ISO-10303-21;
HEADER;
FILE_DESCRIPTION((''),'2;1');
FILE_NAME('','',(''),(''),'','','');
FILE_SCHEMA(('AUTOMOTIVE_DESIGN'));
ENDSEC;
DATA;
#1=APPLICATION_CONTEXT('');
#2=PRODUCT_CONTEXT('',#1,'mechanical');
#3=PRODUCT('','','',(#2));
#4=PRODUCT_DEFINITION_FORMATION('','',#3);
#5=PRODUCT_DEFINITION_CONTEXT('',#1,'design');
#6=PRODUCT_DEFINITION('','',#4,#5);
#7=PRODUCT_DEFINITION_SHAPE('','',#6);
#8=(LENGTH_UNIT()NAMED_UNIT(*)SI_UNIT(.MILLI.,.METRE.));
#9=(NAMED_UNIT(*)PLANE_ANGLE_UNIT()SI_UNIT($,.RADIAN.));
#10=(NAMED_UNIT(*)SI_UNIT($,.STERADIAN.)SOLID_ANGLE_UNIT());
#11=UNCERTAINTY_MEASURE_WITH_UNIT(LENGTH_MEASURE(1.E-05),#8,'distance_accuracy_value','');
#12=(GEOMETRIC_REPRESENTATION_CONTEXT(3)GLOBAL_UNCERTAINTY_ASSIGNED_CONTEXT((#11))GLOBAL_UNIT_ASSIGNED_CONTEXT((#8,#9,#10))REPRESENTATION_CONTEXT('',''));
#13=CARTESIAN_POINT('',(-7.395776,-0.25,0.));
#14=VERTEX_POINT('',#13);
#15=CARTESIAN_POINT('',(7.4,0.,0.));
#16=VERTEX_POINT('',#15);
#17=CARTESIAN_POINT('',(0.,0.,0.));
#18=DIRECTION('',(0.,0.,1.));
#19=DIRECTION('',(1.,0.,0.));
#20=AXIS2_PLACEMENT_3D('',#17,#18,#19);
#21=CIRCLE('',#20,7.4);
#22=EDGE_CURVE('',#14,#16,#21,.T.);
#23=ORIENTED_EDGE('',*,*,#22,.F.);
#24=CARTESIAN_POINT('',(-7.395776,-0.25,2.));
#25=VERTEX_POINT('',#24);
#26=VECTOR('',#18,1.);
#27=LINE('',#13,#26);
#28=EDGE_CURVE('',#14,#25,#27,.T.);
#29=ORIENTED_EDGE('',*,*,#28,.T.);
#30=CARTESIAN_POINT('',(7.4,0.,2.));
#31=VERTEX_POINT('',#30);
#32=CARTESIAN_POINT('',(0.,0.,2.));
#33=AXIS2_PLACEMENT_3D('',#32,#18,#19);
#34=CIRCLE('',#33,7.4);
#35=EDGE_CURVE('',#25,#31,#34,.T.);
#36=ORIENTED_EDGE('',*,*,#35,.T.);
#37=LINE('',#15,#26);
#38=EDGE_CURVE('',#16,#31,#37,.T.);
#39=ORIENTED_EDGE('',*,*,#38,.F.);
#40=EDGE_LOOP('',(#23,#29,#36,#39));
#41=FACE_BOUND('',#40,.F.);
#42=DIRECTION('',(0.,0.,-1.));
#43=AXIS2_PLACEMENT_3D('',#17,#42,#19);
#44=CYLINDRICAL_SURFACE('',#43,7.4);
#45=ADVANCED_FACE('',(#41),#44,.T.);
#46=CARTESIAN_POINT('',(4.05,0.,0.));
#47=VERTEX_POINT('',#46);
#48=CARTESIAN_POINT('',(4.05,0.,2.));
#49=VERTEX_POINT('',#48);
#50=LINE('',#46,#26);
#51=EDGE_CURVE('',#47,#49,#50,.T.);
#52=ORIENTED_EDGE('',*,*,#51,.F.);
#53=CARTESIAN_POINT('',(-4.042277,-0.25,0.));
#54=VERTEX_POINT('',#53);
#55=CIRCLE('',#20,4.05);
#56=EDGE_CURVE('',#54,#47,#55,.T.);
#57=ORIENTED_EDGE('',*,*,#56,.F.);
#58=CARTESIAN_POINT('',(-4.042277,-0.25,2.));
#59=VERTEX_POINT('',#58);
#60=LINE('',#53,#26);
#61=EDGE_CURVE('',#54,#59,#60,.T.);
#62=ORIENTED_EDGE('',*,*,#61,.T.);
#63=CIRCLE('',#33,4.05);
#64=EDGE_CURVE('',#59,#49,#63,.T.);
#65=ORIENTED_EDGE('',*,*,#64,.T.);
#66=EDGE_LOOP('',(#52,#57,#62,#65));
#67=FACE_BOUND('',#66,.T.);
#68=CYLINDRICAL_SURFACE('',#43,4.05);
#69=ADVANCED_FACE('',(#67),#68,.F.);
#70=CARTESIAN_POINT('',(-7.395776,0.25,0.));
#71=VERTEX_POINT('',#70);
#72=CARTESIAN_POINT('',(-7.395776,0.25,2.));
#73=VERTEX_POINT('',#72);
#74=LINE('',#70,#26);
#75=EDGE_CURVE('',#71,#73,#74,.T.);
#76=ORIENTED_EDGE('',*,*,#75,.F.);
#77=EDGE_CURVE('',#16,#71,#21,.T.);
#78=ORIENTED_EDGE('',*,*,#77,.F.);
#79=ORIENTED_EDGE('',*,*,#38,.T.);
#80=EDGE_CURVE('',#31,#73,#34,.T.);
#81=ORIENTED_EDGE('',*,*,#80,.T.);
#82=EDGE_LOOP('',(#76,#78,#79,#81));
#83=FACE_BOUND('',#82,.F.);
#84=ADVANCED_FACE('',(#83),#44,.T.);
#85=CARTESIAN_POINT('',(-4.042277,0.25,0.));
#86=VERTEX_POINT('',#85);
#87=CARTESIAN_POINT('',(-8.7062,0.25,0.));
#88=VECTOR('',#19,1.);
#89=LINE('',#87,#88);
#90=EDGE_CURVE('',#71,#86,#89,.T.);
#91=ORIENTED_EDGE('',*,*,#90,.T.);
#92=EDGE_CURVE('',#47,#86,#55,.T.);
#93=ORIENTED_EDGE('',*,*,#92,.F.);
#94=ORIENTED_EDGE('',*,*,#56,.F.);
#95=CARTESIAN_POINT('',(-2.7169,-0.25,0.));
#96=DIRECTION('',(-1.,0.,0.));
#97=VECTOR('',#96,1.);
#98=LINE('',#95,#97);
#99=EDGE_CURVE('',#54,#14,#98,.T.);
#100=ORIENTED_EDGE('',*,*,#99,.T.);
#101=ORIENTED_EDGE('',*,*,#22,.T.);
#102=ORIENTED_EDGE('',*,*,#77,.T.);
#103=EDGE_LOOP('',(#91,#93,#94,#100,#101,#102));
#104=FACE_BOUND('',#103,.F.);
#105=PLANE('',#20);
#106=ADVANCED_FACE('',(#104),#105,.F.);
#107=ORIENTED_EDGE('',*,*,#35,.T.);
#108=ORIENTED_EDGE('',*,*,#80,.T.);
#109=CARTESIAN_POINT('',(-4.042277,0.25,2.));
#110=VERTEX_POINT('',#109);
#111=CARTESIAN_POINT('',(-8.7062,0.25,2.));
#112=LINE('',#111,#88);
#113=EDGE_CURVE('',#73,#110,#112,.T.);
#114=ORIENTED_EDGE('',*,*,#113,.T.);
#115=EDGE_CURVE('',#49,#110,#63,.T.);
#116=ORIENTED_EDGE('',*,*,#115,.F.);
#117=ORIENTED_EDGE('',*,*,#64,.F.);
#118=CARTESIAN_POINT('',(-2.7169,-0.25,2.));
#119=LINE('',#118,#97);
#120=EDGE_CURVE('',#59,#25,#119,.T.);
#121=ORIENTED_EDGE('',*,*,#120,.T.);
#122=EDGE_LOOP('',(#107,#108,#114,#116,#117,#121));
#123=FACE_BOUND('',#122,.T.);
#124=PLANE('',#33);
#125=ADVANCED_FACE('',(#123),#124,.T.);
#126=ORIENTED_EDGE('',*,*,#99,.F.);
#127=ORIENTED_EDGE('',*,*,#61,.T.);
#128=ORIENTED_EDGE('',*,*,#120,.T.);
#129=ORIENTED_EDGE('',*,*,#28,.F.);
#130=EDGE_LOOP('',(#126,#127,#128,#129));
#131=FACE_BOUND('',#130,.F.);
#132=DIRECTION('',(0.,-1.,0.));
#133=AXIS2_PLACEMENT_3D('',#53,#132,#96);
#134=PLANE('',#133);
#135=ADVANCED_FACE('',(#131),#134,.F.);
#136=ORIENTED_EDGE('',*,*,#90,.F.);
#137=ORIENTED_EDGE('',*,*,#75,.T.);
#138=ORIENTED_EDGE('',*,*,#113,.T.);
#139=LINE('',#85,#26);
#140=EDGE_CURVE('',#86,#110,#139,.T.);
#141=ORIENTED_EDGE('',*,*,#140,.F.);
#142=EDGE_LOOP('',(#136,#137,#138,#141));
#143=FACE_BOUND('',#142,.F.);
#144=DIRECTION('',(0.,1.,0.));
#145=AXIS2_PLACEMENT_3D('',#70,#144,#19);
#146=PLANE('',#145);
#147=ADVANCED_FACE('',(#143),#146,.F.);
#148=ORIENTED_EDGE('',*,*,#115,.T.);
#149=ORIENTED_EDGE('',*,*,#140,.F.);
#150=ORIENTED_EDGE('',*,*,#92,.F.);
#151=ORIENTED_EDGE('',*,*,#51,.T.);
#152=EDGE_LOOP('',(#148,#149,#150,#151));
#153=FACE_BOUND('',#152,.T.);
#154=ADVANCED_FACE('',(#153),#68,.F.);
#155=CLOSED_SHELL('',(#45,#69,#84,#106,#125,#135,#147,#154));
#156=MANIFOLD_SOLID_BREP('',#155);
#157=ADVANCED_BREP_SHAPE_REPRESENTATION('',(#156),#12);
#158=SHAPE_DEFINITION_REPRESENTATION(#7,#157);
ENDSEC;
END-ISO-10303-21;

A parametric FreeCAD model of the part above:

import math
import FreeCAD as App
import Part
import Sketcher
from FreeCAD import Vector
Q = App.Units.Quantity

doc = App.newDocument("Part")
params = doc.addObject("Spreadsheet::Sheet", "Params")
for row, (alias, value) in enumerate([
    ("sketch1_radius", "7.4 mm"),
    ("sketch1_radius2", "4.05 mm"),
    ("pad1_length", "2 mm"),
], start=1):
    params.set(f"A{row}", alias)
    params.set(f"B{row}", "=" + value)
    params.setAlias(f"B{row}", alias)

body = doc.addObject("PartDesign::Body", "Body")

sketch1 = body.newObject("Sketcher::SketchObject", "Sketch")
sketch1.AttachmentSupport = (doc.getObject("XY_Plane"), [""])
sketch1.MapMode = "FlatFace"
sketch1.addGeometry([
    Part.ArcOfCircle(Part.Circle(Vector(0, 0, 0), Vector(0, 0, 1), 4.05), math.radians(-176.460974), math.radians(176.460974)),
    Part.LineSegment(Vector(-4.042277, -0.25, 0), Vector(-7.395776, -0.25, 0)),
    Part.ArcOfCircle(Part.Circle(Vector(0, 0, 0), Vector(0, 0, 1), 7.4), math.radians(-178.063963), math.radians(178.063963)),
    Part.LineSegment(Vector(-7.395776, 0.25, 0), Vector(-4.042277, 0.25, 0)),
], False)
sketch1.addConstraint([
    Sketcher.Constraint("Coincident", 0, 1, 1, 1),
    Sketcher.Constraint("Coincident", 1, 2, 2, 1),
    Sketcher.Constraint("Coincident", 2, 2, 3, 1),
    Sketcher.Constraint("Coincident", 3, 2, 0, 2),
    Sketcher.Constraint("Horizontal", 1),
    Sketcher.Constraint("Horizontal", 3),
    Sketcher.Constraint("Coincident", 0, 3, -1, 1),
    Sketcher.Constraint("Coincident", 2, 3, -1, 1),
    Sketcher.Constraint("Vertical", 1, 2, 2, 2),
    Sketcher.Constraint("Radius", 2, Q("7.4 mm")),
    Sketcher.Constraint("Radius", 0, Q("4.05 mm")),
    Sketcher.Constraint("DistanceY", 1, 2, 2, 2, Q("0.5 mm")),
])
sketch1.setExpression("Constraints[9]", "Params.sketch1_radius")
sketch1.setExpression("Constraints[10]", "Params.sketch1_radius2")
pad1 = body.newObject("PartDesign::Pad", "Pad")
pad1.Profile = sketch1
pad1.setExpression("Length", "Params.pad1_length")

doc.recompute()
